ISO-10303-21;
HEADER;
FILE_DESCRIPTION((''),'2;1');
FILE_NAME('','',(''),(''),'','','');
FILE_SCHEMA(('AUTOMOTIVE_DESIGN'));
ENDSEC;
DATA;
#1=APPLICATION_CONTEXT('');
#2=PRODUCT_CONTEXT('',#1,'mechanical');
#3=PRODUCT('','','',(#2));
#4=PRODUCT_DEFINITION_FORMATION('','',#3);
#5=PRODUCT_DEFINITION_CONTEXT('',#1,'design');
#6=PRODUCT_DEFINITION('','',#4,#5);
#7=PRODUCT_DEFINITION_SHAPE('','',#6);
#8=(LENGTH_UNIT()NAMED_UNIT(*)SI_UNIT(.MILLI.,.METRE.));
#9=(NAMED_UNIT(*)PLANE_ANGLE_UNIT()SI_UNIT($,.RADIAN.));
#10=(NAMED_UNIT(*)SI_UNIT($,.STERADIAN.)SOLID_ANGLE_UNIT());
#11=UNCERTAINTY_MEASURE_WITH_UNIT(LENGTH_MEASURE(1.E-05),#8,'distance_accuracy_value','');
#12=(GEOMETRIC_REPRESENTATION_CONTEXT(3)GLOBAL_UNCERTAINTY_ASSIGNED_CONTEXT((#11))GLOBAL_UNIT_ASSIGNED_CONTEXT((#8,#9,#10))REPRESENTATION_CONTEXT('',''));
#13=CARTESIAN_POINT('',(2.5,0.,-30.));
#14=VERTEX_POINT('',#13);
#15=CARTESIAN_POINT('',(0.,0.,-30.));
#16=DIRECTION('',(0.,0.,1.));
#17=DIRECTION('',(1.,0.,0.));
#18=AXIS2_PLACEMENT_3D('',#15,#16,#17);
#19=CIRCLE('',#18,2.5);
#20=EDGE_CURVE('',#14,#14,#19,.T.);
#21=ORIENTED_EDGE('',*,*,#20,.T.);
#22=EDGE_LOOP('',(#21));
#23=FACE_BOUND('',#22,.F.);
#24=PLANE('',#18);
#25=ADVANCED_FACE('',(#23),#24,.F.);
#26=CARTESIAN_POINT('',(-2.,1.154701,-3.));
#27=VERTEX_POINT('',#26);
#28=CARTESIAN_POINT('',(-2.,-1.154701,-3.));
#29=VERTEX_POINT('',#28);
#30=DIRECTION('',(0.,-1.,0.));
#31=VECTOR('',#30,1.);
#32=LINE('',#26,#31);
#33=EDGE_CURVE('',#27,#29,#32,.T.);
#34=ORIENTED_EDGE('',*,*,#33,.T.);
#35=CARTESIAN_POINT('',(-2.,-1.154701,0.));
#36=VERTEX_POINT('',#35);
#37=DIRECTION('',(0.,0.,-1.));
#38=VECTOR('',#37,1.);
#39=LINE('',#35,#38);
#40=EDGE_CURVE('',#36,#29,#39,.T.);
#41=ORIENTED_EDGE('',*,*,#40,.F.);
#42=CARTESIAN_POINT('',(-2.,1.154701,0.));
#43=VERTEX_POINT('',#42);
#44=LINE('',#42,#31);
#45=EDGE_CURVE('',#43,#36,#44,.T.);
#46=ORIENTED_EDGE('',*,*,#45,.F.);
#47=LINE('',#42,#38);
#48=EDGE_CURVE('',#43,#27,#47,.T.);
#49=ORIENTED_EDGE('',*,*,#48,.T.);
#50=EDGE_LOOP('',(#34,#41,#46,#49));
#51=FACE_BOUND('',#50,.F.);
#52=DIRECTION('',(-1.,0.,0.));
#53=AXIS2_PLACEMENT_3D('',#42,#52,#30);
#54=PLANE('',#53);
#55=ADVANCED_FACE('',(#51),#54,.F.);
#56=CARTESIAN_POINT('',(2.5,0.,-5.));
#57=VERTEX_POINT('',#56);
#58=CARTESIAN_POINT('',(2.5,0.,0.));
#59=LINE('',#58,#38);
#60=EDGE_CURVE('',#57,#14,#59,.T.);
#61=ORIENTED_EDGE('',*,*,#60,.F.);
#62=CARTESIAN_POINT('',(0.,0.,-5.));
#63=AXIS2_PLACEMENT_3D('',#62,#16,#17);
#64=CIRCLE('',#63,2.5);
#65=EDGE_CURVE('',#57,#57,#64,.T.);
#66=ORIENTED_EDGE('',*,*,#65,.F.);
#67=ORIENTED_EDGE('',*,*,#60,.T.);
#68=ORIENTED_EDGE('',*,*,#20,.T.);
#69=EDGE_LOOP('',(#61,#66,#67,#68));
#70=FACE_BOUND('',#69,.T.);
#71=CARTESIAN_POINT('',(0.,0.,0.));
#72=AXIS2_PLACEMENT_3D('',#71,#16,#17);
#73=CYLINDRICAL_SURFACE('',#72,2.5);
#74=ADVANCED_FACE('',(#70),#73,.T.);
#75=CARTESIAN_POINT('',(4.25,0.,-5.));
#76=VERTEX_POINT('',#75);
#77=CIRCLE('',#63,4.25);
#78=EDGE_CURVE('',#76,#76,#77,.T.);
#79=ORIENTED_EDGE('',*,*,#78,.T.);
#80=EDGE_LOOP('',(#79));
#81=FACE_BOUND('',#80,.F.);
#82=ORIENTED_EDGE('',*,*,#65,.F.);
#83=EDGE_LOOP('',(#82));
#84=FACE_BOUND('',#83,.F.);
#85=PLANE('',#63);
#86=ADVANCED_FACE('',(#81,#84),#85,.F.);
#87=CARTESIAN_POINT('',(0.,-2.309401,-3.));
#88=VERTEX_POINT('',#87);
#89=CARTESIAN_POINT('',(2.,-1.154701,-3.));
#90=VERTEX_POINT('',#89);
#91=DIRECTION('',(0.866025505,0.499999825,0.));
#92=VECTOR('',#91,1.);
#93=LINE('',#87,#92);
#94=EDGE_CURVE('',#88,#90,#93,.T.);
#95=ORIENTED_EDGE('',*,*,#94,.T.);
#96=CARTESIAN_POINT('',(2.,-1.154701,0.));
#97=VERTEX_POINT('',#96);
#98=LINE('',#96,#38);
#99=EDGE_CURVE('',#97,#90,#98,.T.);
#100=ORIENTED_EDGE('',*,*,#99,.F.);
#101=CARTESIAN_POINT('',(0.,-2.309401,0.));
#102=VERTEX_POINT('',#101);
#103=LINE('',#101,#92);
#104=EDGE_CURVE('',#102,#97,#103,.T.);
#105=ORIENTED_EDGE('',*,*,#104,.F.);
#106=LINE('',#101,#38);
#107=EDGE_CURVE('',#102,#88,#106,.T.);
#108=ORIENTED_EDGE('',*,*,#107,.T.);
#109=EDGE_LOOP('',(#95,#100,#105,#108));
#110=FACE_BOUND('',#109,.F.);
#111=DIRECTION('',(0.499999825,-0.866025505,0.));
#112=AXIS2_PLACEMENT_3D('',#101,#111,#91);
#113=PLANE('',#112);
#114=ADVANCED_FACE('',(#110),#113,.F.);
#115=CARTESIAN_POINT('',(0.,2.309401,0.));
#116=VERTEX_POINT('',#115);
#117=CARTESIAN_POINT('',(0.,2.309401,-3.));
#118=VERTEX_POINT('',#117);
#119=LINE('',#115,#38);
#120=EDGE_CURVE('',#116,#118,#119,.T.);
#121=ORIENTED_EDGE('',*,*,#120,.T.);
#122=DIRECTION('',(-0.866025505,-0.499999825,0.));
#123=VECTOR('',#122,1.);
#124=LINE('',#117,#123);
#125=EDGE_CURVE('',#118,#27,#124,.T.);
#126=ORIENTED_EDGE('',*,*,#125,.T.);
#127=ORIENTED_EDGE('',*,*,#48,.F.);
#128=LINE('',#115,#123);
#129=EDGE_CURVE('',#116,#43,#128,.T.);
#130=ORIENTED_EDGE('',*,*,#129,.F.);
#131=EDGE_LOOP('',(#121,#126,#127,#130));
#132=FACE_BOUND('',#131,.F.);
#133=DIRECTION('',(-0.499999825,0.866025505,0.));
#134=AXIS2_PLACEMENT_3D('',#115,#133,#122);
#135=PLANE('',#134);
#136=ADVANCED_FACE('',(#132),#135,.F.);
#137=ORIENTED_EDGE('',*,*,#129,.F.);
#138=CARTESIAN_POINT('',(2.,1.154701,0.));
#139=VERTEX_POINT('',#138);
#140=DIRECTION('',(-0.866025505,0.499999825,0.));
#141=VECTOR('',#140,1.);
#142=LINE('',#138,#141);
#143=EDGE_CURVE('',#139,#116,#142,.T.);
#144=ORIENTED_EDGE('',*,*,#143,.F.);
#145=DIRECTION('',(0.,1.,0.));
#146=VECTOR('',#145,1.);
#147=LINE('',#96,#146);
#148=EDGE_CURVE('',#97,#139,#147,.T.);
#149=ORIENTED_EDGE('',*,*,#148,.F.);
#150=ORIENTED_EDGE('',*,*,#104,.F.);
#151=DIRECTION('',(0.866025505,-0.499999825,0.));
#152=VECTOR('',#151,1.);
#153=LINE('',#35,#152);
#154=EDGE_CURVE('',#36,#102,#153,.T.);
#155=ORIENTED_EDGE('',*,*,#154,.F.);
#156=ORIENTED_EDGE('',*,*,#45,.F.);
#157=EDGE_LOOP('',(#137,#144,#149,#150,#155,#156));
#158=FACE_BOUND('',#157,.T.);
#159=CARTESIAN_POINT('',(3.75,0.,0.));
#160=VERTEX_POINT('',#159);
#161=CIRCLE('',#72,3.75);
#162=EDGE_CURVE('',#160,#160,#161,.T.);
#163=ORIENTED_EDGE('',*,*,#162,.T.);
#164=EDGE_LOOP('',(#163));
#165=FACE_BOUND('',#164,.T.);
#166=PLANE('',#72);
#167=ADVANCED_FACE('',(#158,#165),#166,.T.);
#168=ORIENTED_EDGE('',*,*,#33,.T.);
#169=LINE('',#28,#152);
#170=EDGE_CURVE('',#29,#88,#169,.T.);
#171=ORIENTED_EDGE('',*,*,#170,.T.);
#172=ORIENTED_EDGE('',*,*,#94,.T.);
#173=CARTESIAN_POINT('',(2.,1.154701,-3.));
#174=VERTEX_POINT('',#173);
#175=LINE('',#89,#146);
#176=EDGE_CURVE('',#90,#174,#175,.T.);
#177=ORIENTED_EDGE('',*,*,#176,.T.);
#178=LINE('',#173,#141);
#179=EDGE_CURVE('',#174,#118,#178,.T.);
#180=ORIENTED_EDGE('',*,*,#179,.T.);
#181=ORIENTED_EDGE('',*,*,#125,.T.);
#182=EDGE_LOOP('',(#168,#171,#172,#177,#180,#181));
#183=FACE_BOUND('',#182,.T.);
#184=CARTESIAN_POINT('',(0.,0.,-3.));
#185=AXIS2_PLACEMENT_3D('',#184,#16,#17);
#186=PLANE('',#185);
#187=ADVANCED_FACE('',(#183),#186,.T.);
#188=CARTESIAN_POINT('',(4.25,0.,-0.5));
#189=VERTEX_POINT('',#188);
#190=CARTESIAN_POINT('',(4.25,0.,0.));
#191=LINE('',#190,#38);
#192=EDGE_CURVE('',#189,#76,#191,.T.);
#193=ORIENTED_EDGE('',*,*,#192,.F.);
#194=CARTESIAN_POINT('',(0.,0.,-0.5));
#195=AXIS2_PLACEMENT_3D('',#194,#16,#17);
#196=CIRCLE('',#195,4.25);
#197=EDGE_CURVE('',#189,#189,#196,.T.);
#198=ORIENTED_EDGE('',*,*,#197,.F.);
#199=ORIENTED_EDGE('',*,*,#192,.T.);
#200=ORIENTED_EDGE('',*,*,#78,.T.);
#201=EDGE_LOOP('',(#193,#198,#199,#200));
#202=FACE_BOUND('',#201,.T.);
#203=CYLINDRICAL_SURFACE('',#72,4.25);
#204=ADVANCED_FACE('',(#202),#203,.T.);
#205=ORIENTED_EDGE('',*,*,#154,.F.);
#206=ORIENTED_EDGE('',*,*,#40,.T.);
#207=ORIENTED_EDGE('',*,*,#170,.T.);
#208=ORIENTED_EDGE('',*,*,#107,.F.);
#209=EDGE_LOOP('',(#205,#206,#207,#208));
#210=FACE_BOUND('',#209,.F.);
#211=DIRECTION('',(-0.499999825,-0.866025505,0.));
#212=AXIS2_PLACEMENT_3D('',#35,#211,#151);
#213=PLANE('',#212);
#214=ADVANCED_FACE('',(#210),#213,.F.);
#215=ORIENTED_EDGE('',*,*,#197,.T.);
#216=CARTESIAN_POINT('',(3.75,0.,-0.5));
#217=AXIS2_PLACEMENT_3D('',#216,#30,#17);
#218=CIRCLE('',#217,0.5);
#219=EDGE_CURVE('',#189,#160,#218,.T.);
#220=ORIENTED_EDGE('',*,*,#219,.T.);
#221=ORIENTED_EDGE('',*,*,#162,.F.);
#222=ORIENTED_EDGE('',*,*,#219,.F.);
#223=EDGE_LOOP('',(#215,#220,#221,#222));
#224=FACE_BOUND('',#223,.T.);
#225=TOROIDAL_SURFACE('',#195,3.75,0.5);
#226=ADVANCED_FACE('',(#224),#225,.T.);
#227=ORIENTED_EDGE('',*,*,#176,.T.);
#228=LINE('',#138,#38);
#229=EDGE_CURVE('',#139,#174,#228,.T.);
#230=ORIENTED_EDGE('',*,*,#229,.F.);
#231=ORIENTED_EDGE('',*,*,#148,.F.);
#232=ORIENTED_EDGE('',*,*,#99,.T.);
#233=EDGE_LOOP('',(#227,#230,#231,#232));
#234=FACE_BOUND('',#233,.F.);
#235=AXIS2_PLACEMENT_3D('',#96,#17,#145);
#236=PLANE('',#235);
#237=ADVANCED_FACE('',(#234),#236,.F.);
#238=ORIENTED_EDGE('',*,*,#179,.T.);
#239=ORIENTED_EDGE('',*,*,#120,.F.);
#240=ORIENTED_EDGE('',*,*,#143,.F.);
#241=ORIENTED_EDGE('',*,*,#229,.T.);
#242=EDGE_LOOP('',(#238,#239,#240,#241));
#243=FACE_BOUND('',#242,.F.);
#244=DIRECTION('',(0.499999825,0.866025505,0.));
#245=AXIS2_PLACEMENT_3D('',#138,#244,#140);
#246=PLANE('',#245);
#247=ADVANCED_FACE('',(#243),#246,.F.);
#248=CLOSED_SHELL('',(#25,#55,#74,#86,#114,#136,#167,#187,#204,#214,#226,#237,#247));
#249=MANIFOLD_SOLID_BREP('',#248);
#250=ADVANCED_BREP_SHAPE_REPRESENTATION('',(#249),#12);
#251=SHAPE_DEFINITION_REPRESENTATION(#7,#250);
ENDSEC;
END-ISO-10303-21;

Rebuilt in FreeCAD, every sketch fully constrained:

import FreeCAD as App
import Part
import Sketcher
from FreeCAD import Vector
Q = App.Units.Quantity


def edges_at(feature, points):
    """Names of the edges that pass closest to the given points."""
    edges = feature.Shape.Edges
    near = lambda p: min(range(len(edges)), key=lambda i: edges[i].distToShape(Part.Vertex(*p))[0])
    return sorted({f"Edge{near(p) + 1}" for p in points})

doc = App.newDocument("Part")
body = doc.addObject("PartDesign::Body", "Body")

sketch1 = body.newObject("Sketcher::SketchObject", "Sketch")
sketch1.AttachmentSupport = (doc.getObject("XY_Plane"), [""])
sketch1.MapMode = "FlatFace"
sketch1.addGeometry(Part.Circle(Vector(0, 0, 0), Vector(0, 0, 1), 4.25), False)
sketch1.addGeometry(Part.Circle(Vector(0, 0, 0), Vector(0, 0, 1), 2.5), False)
sketch1.addConstraint(Sketcher.Constraint("Coincident", 0, 3, -1, 1))
sketch1.addConstraint(Sketcher.Constraint("Coincident", 1, 3, -1, 1))
sketch1.addConstraint(Sketcher.Constraint("Diameter", 1, Q("5 mm")))
sketch1.addConstraint(Sketcher.Constraint("Diameter", 0, Q("8.5 mm")))
pad1 = body.newObject("PartDesign::Pad", "Pad")
pad1.Profile = sketch1
pad1.Length = 5
pad1.Reversed = True

sketch2 = body.newObject("Sketcher::SketchObject", "Sketch001")
sketch2.AttachmentSupport = (doc.getObject("XY_Plane"), [""])
sketch2.MapMode = "FlatFace"
sketch2.addGeometry(Part.Circle(Vector(0, 0, 0), Vector(0, 0, 1), 2.5), False)
sketch2.addConstraint(Sketcher.Constraint("Coincident", 0, 3, -1, 1))
sketch2.addConstraint(Sketcher.Constraint("Diameter", 0, Q("5 mm")))
pad2 = body.newObject("PartDesign::Pad", "Pad001")
pad2.Profile = sketch2
pad2.Length = 30
pad2.Reversed = True

sketch3 = body.newObject("Sketcher::SketchObject", "Sketch002")
sketch3.AttachmentSupport = (doc.getObject("XY_Plane"), [""])
sketch3.MapMode = "FlatFace"
sketch3.addGeometry(Part.LineSegment(Vector(2, -1.154701, 0), Vector(2, 1.154701, 0)), False)
sketch3.addGeometry(Part.LineSegment(Vector(2, 1.154701, 0), Vector(0, 2.309401, 0)), False)
sketch3.addGeometry(Part.LineSegment(Vector(0, 2.309401, 0), Vector(-2, 1.154701, 0)), False)
sketch3.addGeometry(Part.LineSegment(Vector(-2, 1.154701, 0), Vector(-2, -1.154701, 0)), False)
sketch3.addGeometry(Part.LineSegment(Vector(-2, -1.154701, 0), Vector(0, -2.309401, 0)), False)
sketch3.addGeometry(Part.LineSegment(Vector(0, -2.309401, 0), Vector(2, -1.154701, 0)), False)
sketch3.addConstraint(Sketcher.Constraint("Coincident", 0, 2, 1, 1))
sketch3.addConstraint(Sketcher.Constraint("Coincident", 1, 2, 2, 1))
sketch3.addConstraint(Sketcher.Constraint("Coincident", 2, 2, 3, 1))
sketch3.addConstraint(Sketcher.Constraint("Coincident", 3, 2, 4, 1))
sketch3.addConstraint(Sketcher.Constraint("Coincident", 4, 2, 5, 1))
sketch3.addConstraint(Sketcher.Constraint("Coincident", 5, 2, 0, 1))
sketch3.addConstraint(Sketcher.Constraint("Vertical", 0))
sketch3.addConstraint(Sketcher.Constraint("Vertical", 3))
sketch3.addConstraint(Sketcher.Constraint("Symmetric", 0, 2, 3, 2, -1, 1))
sketch3.addConstraint(Sketcher.Constraint("Symmetric", 1, 2, 4, 2, -1, 1))
sketch3.addConstraint(Sketcher.Constraint("PointOnObject", 1, 2, -2))
sketch3.addConstraint(Sketcher.Constraint("Parallel", 2, 5))
sketch3.addConstraint(Sketcher.Constraint("Horizontal", 0, 2, 2, 2))
sketch3.addConstraint(Sketcher.Constraint("Angle", 1, Q("150.000012 deg")))
sketch3.addConstraint(Sketcher.Constraint("DistanceX", -1, 1, 0, 2, Q("2 mm")))
sketch3.addConstraint(Sketcher.Constraint("DistanceY", 0, 1, 0, 2, Q("2.309402 mm")))
pocket1 = body.newObject("PartDesign::Pocket", "Pocket")
pocket1.Profile = sketch3
pocket1.Length = 3
doc.recompute()

fillet = body.newObject("PartDesign::Fillet", "Fillet")
fillet.Base = (pocket1, edges_at(pocket1, [(-4.25, 0, 0)]))
fillet.Radius = 0.5

doc.recompute()
